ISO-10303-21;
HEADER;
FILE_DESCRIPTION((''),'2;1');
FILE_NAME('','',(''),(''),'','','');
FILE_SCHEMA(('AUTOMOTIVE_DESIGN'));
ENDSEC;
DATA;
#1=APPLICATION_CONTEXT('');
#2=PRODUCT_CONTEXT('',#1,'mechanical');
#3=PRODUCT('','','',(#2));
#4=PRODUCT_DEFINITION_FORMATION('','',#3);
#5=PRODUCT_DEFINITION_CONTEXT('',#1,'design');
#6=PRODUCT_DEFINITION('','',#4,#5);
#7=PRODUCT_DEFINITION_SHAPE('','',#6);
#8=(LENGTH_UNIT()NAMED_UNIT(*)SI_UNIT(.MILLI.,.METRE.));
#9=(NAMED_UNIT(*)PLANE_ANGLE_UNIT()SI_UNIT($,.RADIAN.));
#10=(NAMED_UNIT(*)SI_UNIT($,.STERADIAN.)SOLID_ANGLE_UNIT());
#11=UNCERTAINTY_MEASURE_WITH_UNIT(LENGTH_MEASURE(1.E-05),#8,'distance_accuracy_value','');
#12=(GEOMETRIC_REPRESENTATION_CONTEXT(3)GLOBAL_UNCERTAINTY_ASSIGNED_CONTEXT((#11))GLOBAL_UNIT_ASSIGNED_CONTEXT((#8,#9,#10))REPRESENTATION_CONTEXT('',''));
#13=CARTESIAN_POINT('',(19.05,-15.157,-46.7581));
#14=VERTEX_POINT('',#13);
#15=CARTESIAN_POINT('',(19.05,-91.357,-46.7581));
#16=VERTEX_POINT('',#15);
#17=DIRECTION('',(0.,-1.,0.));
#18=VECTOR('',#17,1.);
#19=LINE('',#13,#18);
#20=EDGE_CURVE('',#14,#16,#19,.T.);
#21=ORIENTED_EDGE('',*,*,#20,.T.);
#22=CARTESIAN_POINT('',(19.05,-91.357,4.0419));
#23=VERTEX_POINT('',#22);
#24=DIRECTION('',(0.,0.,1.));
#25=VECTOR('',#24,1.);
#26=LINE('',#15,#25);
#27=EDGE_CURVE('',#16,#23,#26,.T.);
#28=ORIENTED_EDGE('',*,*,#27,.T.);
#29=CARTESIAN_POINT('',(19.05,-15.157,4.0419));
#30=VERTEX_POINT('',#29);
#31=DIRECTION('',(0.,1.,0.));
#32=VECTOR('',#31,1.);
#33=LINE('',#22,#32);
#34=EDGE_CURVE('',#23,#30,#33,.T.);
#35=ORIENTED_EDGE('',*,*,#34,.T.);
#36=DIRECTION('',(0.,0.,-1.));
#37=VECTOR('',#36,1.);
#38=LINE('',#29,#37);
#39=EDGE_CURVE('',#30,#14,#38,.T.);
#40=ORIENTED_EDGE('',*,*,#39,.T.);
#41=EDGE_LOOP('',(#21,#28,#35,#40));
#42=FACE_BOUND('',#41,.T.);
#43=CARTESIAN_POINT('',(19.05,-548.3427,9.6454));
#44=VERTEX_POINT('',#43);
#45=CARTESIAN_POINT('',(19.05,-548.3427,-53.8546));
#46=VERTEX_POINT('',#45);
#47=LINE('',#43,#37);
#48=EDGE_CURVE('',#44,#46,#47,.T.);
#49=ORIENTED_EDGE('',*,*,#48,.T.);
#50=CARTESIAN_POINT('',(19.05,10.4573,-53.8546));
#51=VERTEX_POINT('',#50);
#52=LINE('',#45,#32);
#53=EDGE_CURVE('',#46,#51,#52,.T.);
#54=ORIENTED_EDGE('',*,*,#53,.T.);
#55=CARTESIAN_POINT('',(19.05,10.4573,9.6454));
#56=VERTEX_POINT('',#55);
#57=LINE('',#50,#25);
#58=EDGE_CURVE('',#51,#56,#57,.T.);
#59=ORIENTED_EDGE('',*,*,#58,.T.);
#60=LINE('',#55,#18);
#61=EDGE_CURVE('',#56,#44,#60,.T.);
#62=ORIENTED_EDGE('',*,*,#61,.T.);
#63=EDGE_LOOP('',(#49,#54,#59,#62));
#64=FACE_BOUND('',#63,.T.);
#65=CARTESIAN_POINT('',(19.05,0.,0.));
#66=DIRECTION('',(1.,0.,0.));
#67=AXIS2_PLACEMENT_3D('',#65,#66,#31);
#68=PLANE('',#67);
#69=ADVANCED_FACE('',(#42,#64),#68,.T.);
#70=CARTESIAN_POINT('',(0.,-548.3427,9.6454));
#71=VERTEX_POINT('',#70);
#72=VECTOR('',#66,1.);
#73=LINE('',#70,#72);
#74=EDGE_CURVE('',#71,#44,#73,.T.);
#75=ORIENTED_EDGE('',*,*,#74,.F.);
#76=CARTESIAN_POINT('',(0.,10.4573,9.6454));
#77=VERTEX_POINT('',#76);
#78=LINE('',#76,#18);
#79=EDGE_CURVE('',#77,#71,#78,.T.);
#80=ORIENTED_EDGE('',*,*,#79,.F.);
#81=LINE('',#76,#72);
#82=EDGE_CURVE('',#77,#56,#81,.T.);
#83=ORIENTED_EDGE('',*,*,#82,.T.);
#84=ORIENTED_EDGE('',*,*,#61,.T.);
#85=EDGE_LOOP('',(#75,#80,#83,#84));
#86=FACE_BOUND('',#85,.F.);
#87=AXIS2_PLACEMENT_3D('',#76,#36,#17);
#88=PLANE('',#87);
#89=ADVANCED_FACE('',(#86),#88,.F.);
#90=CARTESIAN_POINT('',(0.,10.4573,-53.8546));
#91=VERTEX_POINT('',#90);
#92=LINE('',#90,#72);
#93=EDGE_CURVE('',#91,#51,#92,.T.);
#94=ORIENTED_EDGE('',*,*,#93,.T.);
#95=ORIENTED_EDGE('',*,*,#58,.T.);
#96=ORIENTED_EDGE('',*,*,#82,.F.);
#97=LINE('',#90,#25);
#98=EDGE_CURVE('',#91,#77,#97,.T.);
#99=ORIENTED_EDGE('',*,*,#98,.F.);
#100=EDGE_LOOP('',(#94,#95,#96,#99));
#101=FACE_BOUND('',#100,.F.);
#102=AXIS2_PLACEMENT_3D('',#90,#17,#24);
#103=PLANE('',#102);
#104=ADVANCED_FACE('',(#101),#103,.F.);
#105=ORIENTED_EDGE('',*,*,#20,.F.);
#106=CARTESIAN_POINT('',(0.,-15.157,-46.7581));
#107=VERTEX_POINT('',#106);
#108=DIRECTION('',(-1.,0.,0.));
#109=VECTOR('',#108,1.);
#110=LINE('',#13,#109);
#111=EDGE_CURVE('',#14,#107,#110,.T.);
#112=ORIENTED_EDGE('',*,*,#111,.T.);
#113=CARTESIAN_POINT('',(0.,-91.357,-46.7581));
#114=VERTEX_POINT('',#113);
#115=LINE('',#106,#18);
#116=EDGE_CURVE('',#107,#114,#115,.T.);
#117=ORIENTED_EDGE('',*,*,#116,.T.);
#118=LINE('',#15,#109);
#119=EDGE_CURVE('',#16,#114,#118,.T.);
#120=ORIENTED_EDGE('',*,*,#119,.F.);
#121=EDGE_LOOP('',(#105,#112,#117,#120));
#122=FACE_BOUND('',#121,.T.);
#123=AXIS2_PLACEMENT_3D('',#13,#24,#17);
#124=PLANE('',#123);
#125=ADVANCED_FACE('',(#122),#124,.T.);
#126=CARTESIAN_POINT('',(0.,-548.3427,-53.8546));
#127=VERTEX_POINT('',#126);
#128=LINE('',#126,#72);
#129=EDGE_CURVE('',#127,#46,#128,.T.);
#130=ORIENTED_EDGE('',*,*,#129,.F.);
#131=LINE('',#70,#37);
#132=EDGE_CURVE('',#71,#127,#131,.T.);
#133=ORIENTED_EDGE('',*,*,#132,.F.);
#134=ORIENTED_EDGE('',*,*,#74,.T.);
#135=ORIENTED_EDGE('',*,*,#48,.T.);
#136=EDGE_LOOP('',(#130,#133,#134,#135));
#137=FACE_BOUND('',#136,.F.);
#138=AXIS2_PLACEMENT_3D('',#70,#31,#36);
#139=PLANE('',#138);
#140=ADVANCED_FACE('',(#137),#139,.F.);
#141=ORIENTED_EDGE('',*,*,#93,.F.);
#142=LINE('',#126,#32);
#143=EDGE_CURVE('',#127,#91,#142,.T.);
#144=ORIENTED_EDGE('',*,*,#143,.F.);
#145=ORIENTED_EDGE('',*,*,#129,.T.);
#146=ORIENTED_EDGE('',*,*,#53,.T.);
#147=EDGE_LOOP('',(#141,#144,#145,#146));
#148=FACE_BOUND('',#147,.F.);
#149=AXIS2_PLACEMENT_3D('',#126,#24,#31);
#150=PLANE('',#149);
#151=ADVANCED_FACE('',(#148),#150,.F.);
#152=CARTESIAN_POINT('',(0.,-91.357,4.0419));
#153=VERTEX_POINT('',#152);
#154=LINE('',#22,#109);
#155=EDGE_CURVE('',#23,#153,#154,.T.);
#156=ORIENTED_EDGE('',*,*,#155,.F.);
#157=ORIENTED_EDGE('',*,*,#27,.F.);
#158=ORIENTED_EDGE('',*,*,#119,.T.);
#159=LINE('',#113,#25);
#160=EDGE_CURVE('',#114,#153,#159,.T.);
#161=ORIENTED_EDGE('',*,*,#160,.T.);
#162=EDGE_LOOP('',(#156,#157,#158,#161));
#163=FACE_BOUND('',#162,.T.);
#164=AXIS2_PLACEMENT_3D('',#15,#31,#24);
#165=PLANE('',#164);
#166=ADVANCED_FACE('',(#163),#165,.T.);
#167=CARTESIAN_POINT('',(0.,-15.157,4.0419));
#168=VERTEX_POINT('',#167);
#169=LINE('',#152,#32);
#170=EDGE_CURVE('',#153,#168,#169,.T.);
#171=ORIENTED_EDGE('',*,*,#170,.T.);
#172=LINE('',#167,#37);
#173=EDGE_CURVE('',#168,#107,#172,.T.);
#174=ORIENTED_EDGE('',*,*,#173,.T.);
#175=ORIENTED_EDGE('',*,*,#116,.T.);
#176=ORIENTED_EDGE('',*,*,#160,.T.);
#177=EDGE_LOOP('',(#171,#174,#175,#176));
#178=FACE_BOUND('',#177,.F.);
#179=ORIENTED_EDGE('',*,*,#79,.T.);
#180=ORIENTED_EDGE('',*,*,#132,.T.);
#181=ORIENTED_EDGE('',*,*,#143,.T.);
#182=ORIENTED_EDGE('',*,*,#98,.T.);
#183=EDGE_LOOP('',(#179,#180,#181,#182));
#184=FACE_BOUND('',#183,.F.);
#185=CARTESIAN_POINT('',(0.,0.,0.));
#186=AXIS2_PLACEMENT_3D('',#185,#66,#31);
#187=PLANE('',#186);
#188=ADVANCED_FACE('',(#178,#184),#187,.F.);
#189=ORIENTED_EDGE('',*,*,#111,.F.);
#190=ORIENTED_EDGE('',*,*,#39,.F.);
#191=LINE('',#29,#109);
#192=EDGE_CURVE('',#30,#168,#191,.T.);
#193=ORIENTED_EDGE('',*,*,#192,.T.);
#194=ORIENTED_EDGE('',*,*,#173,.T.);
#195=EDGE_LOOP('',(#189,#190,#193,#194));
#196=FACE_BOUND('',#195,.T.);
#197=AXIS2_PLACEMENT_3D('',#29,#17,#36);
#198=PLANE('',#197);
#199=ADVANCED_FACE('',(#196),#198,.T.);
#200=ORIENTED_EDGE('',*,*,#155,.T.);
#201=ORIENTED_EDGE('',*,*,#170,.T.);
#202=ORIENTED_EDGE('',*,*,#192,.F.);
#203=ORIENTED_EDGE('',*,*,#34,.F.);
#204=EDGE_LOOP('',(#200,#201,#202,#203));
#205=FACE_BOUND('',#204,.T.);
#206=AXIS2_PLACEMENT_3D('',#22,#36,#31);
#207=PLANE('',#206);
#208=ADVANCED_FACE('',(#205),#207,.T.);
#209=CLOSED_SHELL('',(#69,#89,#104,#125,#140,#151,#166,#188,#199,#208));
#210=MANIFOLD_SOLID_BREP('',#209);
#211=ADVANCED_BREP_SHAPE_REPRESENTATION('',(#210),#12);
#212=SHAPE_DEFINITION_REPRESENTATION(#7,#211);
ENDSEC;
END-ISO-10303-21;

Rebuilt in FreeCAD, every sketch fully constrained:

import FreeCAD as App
import Part
import Sketcher
Q = App.Units.Quantity


def add_polygon(sketch, points):
    """Adds a closed chain of lines whose ends are joined by coincident constraints."""
    first, n = sketch.GeometryCount, len(points)
    for a, b in zip(points, points[1:] + points[:1]):
        sketch.addGeometry(Part.LineSegment(App.Vector(*a, 0), App.Vector(*b, 0)), False)
    for i in range(n):
        sketch.addConstraint(Sketcher.Constraint("Coincident", first + i, 2, first + (i + 1) % n, 1))

doc = App.newDocument("Part")
body = doc.addObject("PartDesign::Body", "Body")

sketch1 = doc.addObject("Sketcher::SketchObject", "Sketch")
body.addObject(sketch1)
sketch1.AttachmentSupport = (doc.YZ_Plane, [""])
sketch1.MapMode = "FlatFace"
add_polygon(sketch1, [(10.4573, -53.8546), (10.4573, 9.6454), (-548.3427, 9.6454), (-548.3427, -53.8546)])
sketch1.addConstraint([
    Sketcher.Constraint("Vertical", 0),
    Sketcher.Constraint("Horizontal", 1),
    Sketcher.Constraint("Vertical", 2),
    Sketcher.Constraint("Horizontal", 3),
    Sketcher.Constraint("DistanceX", 1, 2, 1, 1, Q("22 in")),
    Sketcher.Constraint("DistanceY", 0, 1, 0, 2, Q("2.5 in")),
    Sketcher.Constraint("DistanceX", -1, 1, 0, 2, Q("0.4117 in")),
    Sketcher.Constraint("DistanceY", -1, 1, 0, 2, Q("9.6454 mm")),
])
pad1 = doc.addObject("PartDesign::Pad", "Pad")
body.addObject(pad1)
pad1.Profile = sketch1
pad1.Length = Q("0.75 in")

sketch2 = doc.addObject("Sketcher::SketchObject", "Sketch001")
body.addObject(sketch2)
sketch2.AttachmentSupport = (doc.YZ_Plane, [""])
sketch2.MapMode = "FlatFace"
sketch2.AttachmentOffset = App.Placement(App.Vector(0, 0, 0.75 * 25.4), App.Rotation())
add_polygon(sketch2, [(-15.157, -46.7581), (-15.157, 4.0419), (-91.357, 4.0419), (-91.357, -46.7581)])
sketch2.addConstraint([
    Sketcher.Constraint("Vertical", 0),
    Sketcher.Constraint("Horizontal", 1),
    Sketcher.Constraint("Vertical", 2),
    Sketcher.Constraint("Horizontal", 3),
    Sketcher.Constraint("DistanceX", 1, 2, 1, 1, Q("3 in")),
    Sketcher.Constraint("DistanceY", 0, 1, 0, 2, Q("2 in")),
    Sketcher.Constraint("DistanceX", 0, 2, -1, 1, Q("15.157 mm")),
    Sketcher.Constraint("DistanceY", -1, 1, 0, 2, Q("4.042 mm")),
])
pocket1 = doc.addObject("PartDesign::Pocket", "Pocket")
body.addObject(pocket1)
pocket1.Profile = sketch2
pocket1.Length = Q("0.75 in")

doc.recompute()
